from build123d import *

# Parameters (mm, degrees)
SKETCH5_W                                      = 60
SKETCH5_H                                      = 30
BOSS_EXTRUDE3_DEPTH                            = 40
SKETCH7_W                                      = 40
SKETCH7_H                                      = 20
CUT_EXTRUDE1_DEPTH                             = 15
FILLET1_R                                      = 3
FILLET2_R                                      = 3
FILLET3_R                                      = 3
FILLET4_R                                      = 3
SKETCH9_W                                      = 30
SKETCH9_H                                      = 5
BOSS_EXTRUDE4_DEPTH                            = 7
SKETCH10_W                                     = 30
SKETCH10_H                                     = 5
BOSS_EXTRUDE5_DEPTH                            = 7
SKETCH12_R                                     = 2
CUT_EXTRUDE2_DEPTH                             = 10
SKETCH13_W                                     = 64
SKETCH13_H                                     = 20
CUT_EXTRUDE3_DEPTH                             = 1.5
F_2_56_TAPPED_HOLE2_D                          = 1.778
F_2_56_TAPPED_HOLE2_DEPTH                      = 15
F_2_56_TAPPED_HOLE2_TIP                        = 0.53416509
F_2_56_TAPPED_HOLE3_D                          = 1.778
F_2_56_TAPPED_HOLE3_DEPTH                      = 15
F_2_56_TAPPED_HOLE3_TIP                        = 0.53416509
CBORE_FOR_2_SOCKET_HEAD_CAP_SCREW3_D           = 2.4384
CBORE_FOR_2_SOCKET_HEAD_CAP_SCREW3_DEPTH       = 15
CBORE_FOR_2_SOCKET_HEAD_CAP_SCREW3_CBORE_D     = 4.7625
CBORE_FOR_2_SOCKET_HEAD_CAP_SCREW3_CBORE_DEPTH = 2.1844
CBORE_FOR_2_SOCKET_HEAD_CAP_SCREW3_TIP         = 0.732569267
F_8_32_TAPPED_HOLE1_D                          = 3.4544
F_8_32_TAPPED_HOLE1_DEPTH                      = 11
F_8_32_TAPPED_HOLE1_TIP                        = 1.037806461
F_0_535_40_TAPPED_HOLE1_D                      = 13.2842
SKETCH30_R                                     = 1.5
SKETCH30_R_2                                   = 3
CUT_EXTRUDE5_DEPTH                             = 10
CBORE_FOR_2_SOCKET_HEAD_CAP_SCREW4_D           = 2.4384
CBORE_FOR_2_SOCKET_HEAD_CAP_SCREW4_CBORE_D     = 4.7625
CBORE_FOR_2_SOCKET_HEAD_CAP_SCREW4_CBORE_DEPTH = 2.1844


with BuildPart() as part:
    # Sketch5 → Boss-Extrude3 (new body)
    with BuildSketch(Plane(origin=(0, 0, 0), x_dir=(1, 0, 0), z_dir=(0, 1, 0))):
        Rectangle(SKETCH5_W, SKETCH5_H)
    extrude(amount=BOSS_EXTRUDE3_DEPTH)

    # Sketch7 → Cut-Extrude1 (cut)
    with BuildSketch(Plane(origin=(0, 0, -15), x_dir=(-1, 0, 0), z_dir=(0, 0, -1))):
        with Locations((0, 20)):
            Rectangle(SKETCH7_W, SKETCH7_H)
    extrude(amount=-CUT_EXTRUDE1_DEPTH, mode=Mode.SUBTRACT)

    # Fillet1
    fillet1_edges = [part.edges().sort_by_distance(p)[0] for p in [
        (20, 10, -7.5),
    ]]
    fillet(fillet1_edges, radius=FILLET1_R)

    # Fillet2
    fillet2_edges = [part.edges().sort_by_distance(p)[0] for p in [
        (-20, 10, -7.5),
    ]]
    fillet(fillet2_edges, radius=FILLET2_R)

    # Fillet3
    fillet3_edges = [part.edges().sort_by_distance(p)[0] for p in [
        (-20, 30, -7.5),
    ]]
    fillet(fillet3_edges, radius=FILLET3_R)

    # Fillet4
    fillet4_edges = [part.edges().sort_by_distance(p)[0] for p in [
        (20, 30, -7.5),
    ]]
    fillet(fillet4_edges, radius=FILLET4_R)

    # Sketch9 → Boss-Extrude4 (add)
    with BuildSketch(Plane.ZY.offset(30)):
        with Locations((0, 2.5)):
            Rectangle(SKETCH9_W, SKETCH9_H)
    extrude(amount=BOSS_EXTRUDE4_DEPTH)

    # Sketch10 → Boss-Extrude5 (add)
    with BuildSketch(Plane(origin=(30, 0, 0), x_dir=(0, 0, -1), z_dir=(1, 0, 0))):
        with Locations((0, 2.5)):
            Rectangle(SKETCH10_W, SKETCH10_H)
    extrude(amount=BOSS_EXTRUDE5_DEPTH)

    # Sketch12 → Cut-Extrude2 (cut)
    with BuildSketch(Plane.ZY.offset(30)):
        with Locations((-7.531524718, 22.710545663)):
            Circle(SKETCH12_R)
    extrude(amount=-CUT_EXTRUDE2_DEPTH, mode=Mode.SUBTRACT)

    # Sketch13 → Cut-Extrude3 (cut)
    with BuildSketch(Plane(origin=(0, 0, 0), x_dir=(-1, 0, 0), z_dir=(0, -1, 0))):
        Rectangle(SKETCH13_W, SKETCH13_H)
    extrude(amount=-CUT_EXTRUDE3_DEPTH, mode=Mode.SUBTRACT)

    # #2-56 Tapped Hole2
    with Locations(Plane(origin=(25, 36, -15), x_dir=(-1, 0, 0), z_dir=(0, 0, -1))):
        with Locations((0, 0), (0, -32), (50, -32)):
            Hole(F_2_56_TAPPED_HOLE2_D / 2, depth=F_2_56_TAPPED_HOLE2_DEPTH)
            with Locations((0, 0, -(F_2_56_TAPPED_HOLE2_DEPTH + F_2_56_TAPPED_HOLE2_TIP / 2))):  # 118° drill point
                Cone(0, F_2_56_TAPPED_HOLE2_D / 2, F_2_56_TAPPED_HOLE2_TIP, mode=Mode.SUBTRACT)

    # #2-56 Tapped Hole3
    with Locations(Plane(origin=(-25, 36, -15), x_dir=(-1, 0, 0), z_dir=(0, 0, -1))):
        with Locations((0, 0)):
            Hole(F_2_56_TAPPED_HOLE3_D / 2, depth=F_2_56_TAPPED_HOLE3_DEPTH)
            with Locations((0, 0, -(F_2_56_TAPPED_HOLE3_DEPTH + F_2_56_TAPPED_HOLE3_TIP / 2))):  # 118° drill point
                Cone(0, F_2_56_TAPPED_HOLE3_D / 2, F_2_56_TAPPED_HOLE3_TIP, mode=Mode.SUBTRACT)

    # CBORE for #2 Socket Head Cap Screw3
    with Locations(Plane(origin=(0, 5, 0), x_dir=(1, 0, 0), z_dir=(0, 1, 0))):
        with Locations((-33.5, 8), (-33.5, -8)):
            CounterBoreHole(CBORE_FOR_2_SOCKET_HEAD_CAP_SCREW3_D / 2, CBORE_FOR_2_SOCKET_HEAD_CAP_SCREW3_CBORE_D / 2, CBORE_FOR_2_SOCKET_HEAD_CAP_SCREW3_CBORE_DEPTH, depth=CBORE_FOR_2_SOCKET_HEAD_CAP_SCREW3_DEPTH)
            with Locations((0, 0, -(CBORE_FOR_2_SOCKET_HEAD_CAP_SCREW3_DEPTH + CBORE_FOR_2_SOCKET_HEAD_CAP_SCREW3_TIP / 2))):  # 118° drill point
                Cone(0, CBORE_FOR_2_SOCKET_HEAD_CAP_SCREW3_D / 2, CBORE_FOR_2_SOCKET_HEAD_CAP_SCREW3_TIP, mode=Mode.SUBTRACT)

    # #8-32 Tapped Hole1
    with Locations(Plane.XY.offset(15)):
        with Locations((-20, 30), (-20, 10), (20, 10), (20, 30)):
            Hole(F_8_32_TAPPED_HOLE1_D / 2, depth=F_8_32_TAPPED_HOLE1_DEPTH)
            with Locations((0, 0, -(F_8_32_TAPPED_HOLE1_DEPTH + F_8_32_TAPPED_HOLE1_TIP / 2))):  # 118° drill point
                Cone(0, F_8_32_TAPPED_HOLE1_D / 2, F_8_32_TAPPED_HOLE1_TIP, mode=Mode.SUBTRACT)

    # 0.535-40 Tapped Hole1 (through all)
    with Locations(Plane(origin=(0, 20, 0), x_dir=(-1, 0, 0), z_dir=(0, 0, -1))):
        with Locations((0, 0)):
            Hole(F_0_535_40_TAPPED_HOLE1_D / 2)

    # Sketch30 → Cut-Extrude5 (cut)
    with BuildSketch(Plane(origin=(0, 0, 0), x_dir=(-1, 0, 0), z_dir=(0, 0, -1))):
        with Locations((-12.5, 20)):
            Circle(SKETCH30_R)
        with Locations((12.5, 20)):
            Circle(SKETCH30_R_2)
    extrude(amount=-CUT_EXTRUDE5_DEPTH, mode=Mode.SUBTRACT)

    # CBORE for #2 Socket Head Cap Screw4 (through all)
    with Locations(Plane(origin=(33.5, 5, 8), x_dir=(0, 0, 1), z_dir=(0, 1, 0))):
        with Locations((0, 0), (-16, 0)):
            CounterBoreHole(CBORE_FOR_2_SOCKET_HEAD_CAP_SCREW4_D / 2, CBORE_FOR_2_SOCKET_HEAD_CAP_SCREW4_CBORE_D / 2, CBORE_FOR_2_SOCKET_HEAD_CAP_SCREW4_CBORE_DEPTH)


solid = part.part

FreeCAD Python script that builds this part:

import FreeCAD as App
import Part
import Sketcher
from FreeCAD import Vector


def edges_at(feature, points):
    """Names of the edges that pass closest to the given points."""
    edges = feature.Shape.Edges
    near = lambda p: min(range(len(edges)), key=lambda i: edges[i].distToShape(Part.Vertex(*p))[0])
    return sorted({f"Edge{near(p) + 1}" for p in points})

doc = App.newDocument("Part")
body = doc.addObject("PartDesign::Body", "Body")

sketch1 = doc.addObject("Sketcher::SketchObject", "Sketch")
body.addObject(sketch1)
sketch1.AttachmentSupport = (doc.XZ_Plane, [""])
sketch1.MapMode = "FlatFace"
sketch1.addGeometry(Part.LineSegment(Vector(-30, -15, 0), Vector(-30, 15, 0)), False)
sketch1.addGeometry(Part.LineSegment(Vector(-30, 15, 0), Vector(30, 15, 0)), False)
sketch1.addGeometry(Part.LineSegment(Vector(30, 15, 0), Vector(30, -15, 0)), False)
sketch1.addGeometry(Part.LineSegment(Vector(30, -15, 0), Vector(-30, -15, 0)), False)
sketch1.addConstraint(Sketcher.Constraint("Coincident", 0, 2, 1, 1))
sketch1.addConstraint(Sketcher.Constraint("Coincident", 1, 2, 2, 1))
sketch1.addConstraint(Sketcher.Constraint("Coincident", 2, 2, 3, 1))
sketch1.addConstraint(Sketcher.Constraint("Coincident", 3, 2, 0, 1))
sketch1.addConstraint(Sketcher.Constraint("Vertical", 0))
sketch1.addConstraint(Sketcher.Constraint("Horizontal", 1))
sketch1.addConstraint(Sketcher.Constraint("Vertical", 2))
sketch1.addConstraint(Sketcher.Constraint("Horizontal", 3))
sketch1.addConstraint(Sketcher.Constraint("Symmetric", 0, 2, 2, 2, -1, 1))
sketch1.addConstraint(Sketcher.Constraint("DistanceX", 1, 1, 1, 2, 60.0))
sketch1.addConstraint(Sketcher.Constraint("DistanceY", 0, 1, 0, 2, 30.0))
pad1 = doc.addObject("PartDesign::Pad", "Pad")
body.addObject(pad1)
pad1.Profile = sketch1
pad1.Length = 40
pad1.Reversed = True

sketch2 = doc.addObject("Sketcher::SketchObject", "Sketch001")
body.addObject(sketch2)
sketch2.AttachmentSupport = (doc.XY_Plane, [""])
sketch2.MapMode = "FlatFace"
sketch2.AttachmentOffset = App.Placement(Vector(0, 0, -15), App.Rotation())
sketch2.addGeometry(Part.LineSegment(Vector(20, 30, 0), Vector(20, 10, 0)), False)
sketch2.addGeometry(Part.LineSegment(Vector(20, 10, 0), Vector(-20, 10, 0)), False)
sketch2.addGeometry(Part.LineSegment(Vector(-20, 10, 0), Vector(-20, 30, 0)), False)
sketch2.addGeometry(Part.LineSegment(Vector(-20, 30, 0), Vector(20, 30, 0)), False)
sketch2.addConstraint(Sketcher.Constraint("Coincident", 0, 2, 1, 1))
sketch2.addConstraint(Sketcher.Constraint("Coincident", 1, 2, 2, 1))
sketch2.addConstraint(Sketcher.Constraint("Coincident", 2, 2, 3, 1))
sketch2.addConstraint(Sketcher.Constraint("Coincident", 3, 2, 0, 1))
sketch2.addConstraint(Sketcher.Constraint("Vertical", 0))
sketch2.addConstraint(Sketcher.Constraint("Horizontal", 1))
sketch2.addConstraint(Sketcher.Constraint("Vertical", 2))
sketch2.addConstraint(Sketcher.Constraint("Horizontal", 3))
sketch2.addConstraint(Sketcher.Constraint("DistanceX", 1, 2, 1, 1, 40.0))
sketch2.addConstraint(Sketcher.Constraint("DistanceY", 0, 2, 0, 1, 20.0))
sketch2.addConstraint(Sketcher.Constraint("DistanceX", -1, 1, 0, 2, 20.0))
sketch2.addConstraint(Sketcher.Constraint("DistanceY", -1, 1, 0, 2, 10.0))
pocket1 = doc.addObject("PartDesign::Pocket", "Pocket")
body.addObject(pocket1)
pocket1.Profile = sketch2
pocket1.Length = 15
pocket1.Reversed = True
doc.recompute()

fillet = doc.addObject("PartDesign::Fillet", "Fillet")
body.addObject(fillet)
fillet.Base = (pocket1, edges_at(pocket1, [(20, 10, -7.5)]))
fillet.Radius = 3
doc.recompute()

fillet2 = doc.addObject("PartDesign::Fillet", "Fillet001")
body.addObject(fillet2)
fillet2.Base = (fillet, edges_at(fillet, [(-20, 10, -7.5)]))
fillet2.Radius = 3
doc.recompute()

fillet3 = doc.addObject("PartDesign::Fillet", "Fillet002")
body.addObject(fillet3)
fillet3.Base = (fillet2, edges_at(fillet2, [(-20, 30, -7.5)]))
fillet3.Radius = 3
doc.recompute()

fillet4 = doc.addObject("PartDesign::Fillet", "Fillet003")
body.addObject(fillet4)
fillet4.Base = (fillet3, edges_at(fillet3, [(20, 30, -7.5)]))
fillet4.Radius = 3

sketch3 = doc.addObject("Sketcher::SketchObject", "Sketch002")
body.addObject(sketch3)
sketch3.AttachmentSupport = (doc.YZ_Plane, [""])
sketch3.MapMode = "FlatFace"
sketch3.AttachmentOffset = App.Placement(Vector(0, 0, -30), App.Rotation())
sketch3.addGeometry(Part.LineSegment(Vector(5, -15, 0), Vector(0, -15, 0)), False)
sketch3.addGeometry(Part.LineSegment(Vector(0, -15, 0), Vector(0, 15, 0)), False)
sketch3.addGeometry(Part.LineSegment(Vector(0, 15, 0), Vector(5, 15, 0)), False)
sketch3.addGeometry(Part.LineSegment(Vector(5, 15, 0), Vector(5, -15, 0)), False)
sketch3.addConstraint(Sketcher.Constraint("Coincident", 0, 2, 1, 1))
sketch3.addConstraint(Sketcher.Constraint("Coincident", 1, 2, 2, 1))
sketch3.addConstraint(Sketcher.Constraint("Coincident", 2, 2, 3, 1))
sketch3.addConstraint(Sketcher.Constraint("Coincident", 3, 2, 0, 1))
sketch3.addConstraint(Sketcher.Constraint("Horizontal", 0))
sketch3.addConstraint(Sketcher.Constraint("Vertical", 1))
sketch3.addConstraint(Sketcher.Constraint("Horizontal", 2))
sketch3.addConstraint(Sketcher.Constraint("Vertical", 3))
sketch3.addConstraint(Sketcher.Constraint("Symmetric", 0, 2, 1, 2, -1, 1))
sketch3.addConstraint(Sketcher.Constraint("DistanceX", 0, 2, 0, 1, 5.0))
sketch3.addConstraint(Sketcher.Constraint("DistanceY", 1, 1, 1, 2, 30.0))
pad2 = doc.addObject("PartDesign::Pad", "Pad001")
body.addObject(pad2)
pad2.Profile = sketch3
pad2.Length = 7
pad2.Reversed = True

sketch4 = doc.addObject("Sketcher::SketchObject", "Sketch003")
body.addObject(sketch4)
sketch4.AttachmentSupport = (doc.YZ_Plane, [""])
sketch4.MapMode = "FlatFace"
sketch4.AttachmentOffset = App.Placement(Vector(0, 0, 30), App.Rotation())
sketch4.addGeometry(Part.LineSegment(Vector(5, 15, 0), Vector(0, 15, 0)), False)
sketch4.addGeometry(Part.LineSegment(Vector(0, 15, 0), Vector(0, -15, 0)), False)
sketch4.addGeometry(Part.LineSegment(Vector(0, -15, 0), Vector(5, -15, 0)), False)
sketch4.addGeometry(Part.LineSegment(Vector(5, -15, 0), Vector(5, 15, 0)), False)
sketch4.addConstraint(Sketcher.Constraint("Coincident", 0, 2, 1, 1))
sketch4.addConstraint(Sketcher.Constraint("Coincident", 1, 2, 2, 1))
sketch4.addConstraint(Sketcher.Constraint("Coincident", 2, 2, 3, 1))
sketch4.addConstraint(Sketcher.Constraint("Coincident", 3, 2, 0, 1))
sketch4.addConstraint(Sketcher.Constraint("Horizontal", 0))
sketch4.addConstraint(Sketcher.Constraint("Vertical", 1))
sketch4.addConstraint(Sketcher.Constraint("Horizontal", 2))
sketch4.addConstraint(Sketcher.Constraint("Vertical", 3))
sketch4.addConstraint(Sketcher.Constraint("Symmetric", 0, 2, 1, 2, -1, 1))
sketch4.addConstraint(Sketcher.Constraint("DistanceX", 0, 2, 0, 1, 5.0))
sketch4.addConstraint(Sketcher.Constraint("DistanceY", 1, 2, 1, 1, 30.0))
pad3 = doc.addObject("PartDesign::Pad", "Pad002")
body.addObject(pad3)
pad3.Profile = sketch4
pad3.Length = 7

sketch5 = doc.addObject("Sketcher::SketchObject", "Sketch004")
body.addObject(sketch5)
sketch5.AttachmentSupport = (doc.YZ_Plane, [""])
sketch5.MapMode = "FlatFace"
sketch5.AttachmentOffset = App.Placement(Vector(0, 0, -30), App.Rotation())
sketch5.addGeometry(Part.Circle(Vector(22.710546, -7.531525, 0), Vector(0, 0, 1), 2), False)
sketch5.addConstraint(Sketcher.Constraint("Diameter", 0, 4.0))
sketch5.addConstraint(Sketcher.Constraint("DistanceX", -1, 1, 0, 3, 22.710546))
sketch5.addConstraint(Sketcher.Constraint("DistanceY", 0, 3, -1, 1, 7.531525))
pocket2 = doc.addObject("PartDesign::Pocket", "Pocket001")
body.addObject(pocket2)
pocket2.Profile = sketch5
pocket2.Length = 10
pocket2.Reversed = True

sketch6 = doc.addObject("Sketcher::SketchObject", "Sketch005")
body.addObject(sketch6)
sketch6.AttachmentSupport = (doc.XZ_Plane, [""])
sketch6.MapMode = "FlatFace"
sketch6.addGeometry(Part.LineSegment(Vector(32, -10, 0), Vector(32, 10, 0)), False)
sketch6.addGeometry(Part.LineSegment(Vector(32, 10, 0), Vector(-32, 10, 0)), False)
sketch6.addGeometry(Part.LineSegment(Vector(-32, 10, 0), Vector(-32, -10, 0)), False)
sketch6.addGeometry(Part.LineSegment(Vector(-32, -10, 0), Vector(32, -10, 0)), False)
sketch6.addConstraint(Sketcher.Constraint("Coincident", 0, 2, 1, 1))
sketch6.addConstraint(Sketcher.Constraint("Coincident", 1, 2, 2, 1))
sketch6.addConstraint(Sketcher.Constraint("Coincident", 2, 2, 3, 1))
sketch6.addConstraint(Sketcher.Constraint("Coincident", 3, 2, 0, 1))
sketch6.addConstraint(Sketcher.Constraint("Vertical", 0))
sketch6.addConstraint(Sketcher.Constraint("Horizontal", 1))
sketch6.addConstraint(Sketcher.Constraint("Vertical", 2))
sketch6.addConstraint(Sketcher.Constraint("Horizontal", 3))
sketch6.addConstraint(Sketcher.Constraint("Symmetric", 0, 2, 2, 2, -1, 1))
sketch6.addConstraint(Sketcher.Constraint("DistanceX", 1, 2, 1, 1, 64.0))
sketch6.addConstraint(Sketcher.Constraint("DistanceY", 0, 1, 0, 2, 20.0))
pocket3 = doc.addObject("PartDesign::Pocket", "Pocket002")
body.addObject(pocket3)
pocket3.Profile = sketch6
pocket3.Length = 1.5

sketch7 = doc.addObject("Sketcher::SketchObject", "Sketch006")
body.addObject(sketch7)
sketch7.AttachmentSupport = (doc.XY_Plane, [""])
sketch7.MapMode = "FlatFace"
sketch7.AttachmentOffset = App.Placement(Vector(0, 0, -15), App.Rotation())
sketch7.addGeometry(Part.Circle(Vector(25, 36, 0), Vector(0, 0, 1), 0.889), False)
sketch7.addGeometry(Part.Circle(Vector(25, 4, 0), Vector(0, 0, 1), 0.889), False)
sketch7.addGeometry(Part.Circle(Vector(-25, 4, 0), Vector(0, 0, 1), 0.889), False)
sketch7.addConstraint(Sketcher.Constraint("Equal", 0, 1))
sketch7.addConstraint(Sketcher.Constraint("Equal", 1, 2))
sketch7.addConstraint(Sketcher.Constraint("Symmetric", 1, 3, 2, 3, -2))
sketch7.addConstraint(Sketcher.Constraint("Vertical", 0, 3, 1, 3))
sketch7.addConstraint(Sketcher.Constraint("Diameter", 0, 1.778))
sketch7.addConstraint(Sketcher.Constraint("DistanceX", -1, 1, 0, 3, 25.0))
sketch7.addConstraint(Sketcher.Constraint("DistanceY", -1, 1, 0, 3, 36.0))
sketch7.addConstraint(Sketcher.Constraint("DistanceY", -1, 1, 1, 3, 4.0))
doc.recompute()
hole = doc.addObject("PartDesign::Hole", "Hole")
body.addObject(hole)
hole.Profile = sketch7
hole.ThreadType = "None"
hole.Diameter = 1.778
hole.DepthType = "Dimension"
hole.Depth = 15
hole.DrillPoint = "Angled"
hole.DrillPointAngle = 118
hole.Reversed = True

sketch8 = doc.addObject("Sketcher::SketchObject", "Sketch007")
body.addObject(sketch8)
sketch8.AttachmentSupport = (doc.XY_Plane, [""])
sketch8.MapMode = "FlatFace"
sketch8.AttachmentOffset = App.Placement(Vector(0, 0, -15), App.Rotation())
sketch8.addGeometry(Part.Circle(Vector(-25, 36, 0), Vector(0, 0, 1), 0.889), False)
sketch8.addConstraint(Sketcher.Constraint("Diameter", 0, 1.778))
sketch8.addConstraint(Sketcher.Constraint("DistanceX", 0, 3, -1, 1, 25.0))
sketch8.addConstraint(Sketcher.Constraint("DistanceY", -1, 1, 0, 3, 36.0))
doc.recompute()
hole2 = doc.addObject("PartDesign::Hole", "Hole001")
body.addObject(hole2)
hole2.Profile = sketch8
hole2.ThreadType = "None"
hole2.Diameter = 1.778
hole2.DepthType = "Dimension"
hole2.Depth = 15
hole2.DrillPoint = "Angled"
hole2.DrillPointAngle = 118
hole2.Reversed = True

sketch9 = doc.addObject("Sketcher::SketchObject", "Sketch008")
body.addObject(sketch9)
sketch9.AttachmentSupport = (doc.XZ_Plane, [""])
sketch9.MapMode = "FlatFace"
sketch9.AttachmentOffset = App.Placement(Vector(0, 0, -5), App.Rotation())
sketch9.addGeometry(Part.Circle(Vector(-33.5, -8, 0), Vector(0, 0, 1), 1.2192), False)
sketch9.addGeometry(Part.Circle(Vector(-33.5, 8, 0), Vector(0, 0, 1), 1.2192), False)
sketch9.addConstraint(Sketcher.Constraint("Equal", 0, 1))
sketch9.addConstraint(Sketcher.Constraint("Symmetric", 0, 3, 1, 3, -1))
sketch9.addConstraint(Sketcher.Constraint("DistanceY", 0, 3, -1, 1, 8.0))
sketch9.addConstraint(Sketcher.Constraint("Diameter", 0, 2.4384))
sketch9.addConstraint(Sketcher.Constraint("DistanceX", 0, 3, -1, 1, 33.5))
doc.recompute()
hole3 = doc.addObject("PartDesign::Hole", "Hole002")
body.addObject(hole3)
hole3.Profile = sketch9
hole3.ThreadType = "None"
hole3.Diameter = 2.4384
hole3.DepthType = "Dimension"
hole3.Depth = 15
hole3.DrillPoint = "Angled"
hole3.DrillPointAngle = 118
hole3.HoleCutType = "Counterbore"
hole3.HoleCutDiameter = 4.7625
hole3.HoleCutDepth = 2.1844
hole3.Reversed = True

sketch10 = doc.addObject("Sketcher::SketchObject", "Sketch009")
body.addObject(sketch10)
sketch10.AttachmentSupport = (doc.XY_Plane, [""])
sketch10.MapMode = "FlatFace"
sketch10.AttachmentOffset = App.Placement(Vector(0, 0, 15), App.Rotation())
sketch10.addGeometry(Part.Circle(Vector(-20, 30, 0), Vector(0, 0, 1), 1.7272), False)
sketch10.addGeometry(Part.Circle(Vector(-20, 10, 0), Vector(0, 0, 1), 1.7272), False)
sketch10.addGeometry(Part.Circle(Vector(20, 10, 0), Vector(0, 0, 1), 1.7272), False)
sketch10.addGeometry(Part.Circle(Vector(20, 30, 0), Vector(0, 0, 1), 1.7272), False)
sketch10.addConstraint(Sketcher.Constraint("Equal", 0, 1))
sketch10.addConstraint(Sketcher.Constraint("Equal", 1, 2))
sketch10.addConstraint(Sketcher.Constraint("Equal", 2, 3))
sketch10.addConstraint(Sketcher.Constraint("Symmetric", 1, 3, 2, 3, -2))
sketch10.addConstraint(Sketcher.Constraint("Symmetric", 0, 3, 3, 3, -2))
sketch10.addConstraint(Sketcher.Constraint("Vertical", 0, 3, 1, 3))
sketch10.addConstraint(Sketcher.Constraint("DistanceX", 0, 3, -1, 1, 20.0))
sketch10.addConstraint(Sketcher.Constraint("DistanceY", -1, 1, 0, 3, 30.0))
sketch10.addConstraint(Sketcher.Constraint("DistanceY", -1, 1, 1, 3, 10.0))
sketch10.addConstraint(Sketcher.Constraint("Diameter", 0, 3.4544))
doc.recompute()
hole4 = doc.addObject("PartDesign::Hole", "Hole003")
body.addObject(hole4)
hole4.Profile = sketch10
hole4.ThreadType = "None"
hole4.Diameter = 3.4544
hole4.DepthType = "Dimension"
hole4.Depth = 11
hole4.DrillPoint = "Angled"
hole4.DrillPointAngle = 118

sketch11 = doc.addObject("Sketcher::SketchObject", "Sketch010")
body.addObject(sketch11)
sketch11.AttachmentSupport = (doc.XY_Plane, [""])
sketch11.MapMode = "FlatFace"
sketch11.addGeometry(Part.Circle(Vector(0, 20, 0), Vector(0, 0, 1), 6.6421), False)
sketch11.addConstraint(Sketcher.Constraint("PointOnObject", 0, 3, -2))
sketch11.addConstraint(Sketcher.Constraint("DistanceY", -1, 1, 0, 3, 20.0))
sketch11.addConstraint(Sketcher.Constraint("Diameter", 0, 13.2842))
doc.recompute()
hole5 = doc.addObject("PartDesign::Hole", "Hole004")
body.addObject(hole5)
hole5.Profile = sketch11
hole5.ThreadType = "None"
hole5.Diameter = 13.2842
hole5.DepthType = "ThroughAll"
hole5.Reversed = True

sketch12 = doc.addObject("Sketcher::SketchObject", "Sketch011")
body.addObject(sketch12)
sketch12.AttachmentSupport = (doc.XY_Plane, [""])
sketch12.MapMode = "FlatFace"
sketch12.addGeometry(Part.Circle(Vector(12.5, 20, 0), Vector(0, 0, 1), 1.5), False)
sketch12.addGeometry(Part.Circle(Vector(-12.5, 20, 0), Vector(0, 0, 1), 3), False)
sketch12.addConstraint(Sketcher.Constraint("Symmetric", 0, 3, 1, 3, -2))
sketch12.addConstraint(Sketcher.Constraint("Diameter", 0, 3.0))
sketch12.addConstraint(Sketcher.Constraint("Diameter", 1, 6.0))
sketch12.addConstraint(Sketcher.Constraint("DistanceY", -1, 1, 0, 3, 20.0))
sketch12.addConstraint(Sketcher.Constraint("DistanceX", 1, 3, 0, 3, 25.0))
pocket4 = doc.addObject("PartDesign::Pocket", "Pocket003")
body.addObject(pocket4)
pocket4.Profile = sketch12
pocket4.Length = 10
pocket4.Reversed = True

sketch13 = doc.addObject("Sketcher::SketchObject", "Sketch012")
body.addObject(sketch13)
sketch13.AttachmentSupport = (doc.XZ_Plane, [""])
sketch13.MapMode = "FlatFace"
sketch13.AttachmentOffset = App.Placement(Vector(0, 0, -5), App.Rotation())
sketch13.addGeometry(Part.Circle(Vector(33.5, 8, 0), Vector(0, 0, 1), 1.2192), False)
sketch13.addGeometry(Part.Circle(Vector(33.5, -8, 0), Vector(0, 0, 1), 1.2192), False)
sketch13.addConstraint(Sketcher.Constraint("Equal", 0, 1))
sketch13.addConstraint(Sketcher.Constraint("Symmetric", 0, 3, 1, 3, -1))
sketch13.addConstraint(Sketcher.Constraint("DistanceY", -1, 1, 0, 3, 8.0))
sketch13.addConstraint(Sketcher.Constraint("Diameter", 0, 2.4384))
sketch13.addConstraint(Sketcher.Constraint("DistanceX", -1, 1, 0, 3, 33.5))
doc.recompute()
hole6 = doc.addObject("PartDesign::Hole", "Hole005")
body.addObject(hole6)
hole6.Profile = sketch13
hole6.ThreadType = "None"
hole6.Diameter = 2.4384
hole6.DepthType = "ThroughAll"
hole6.HoleCutType = "Counterbore"
hole6.HoleCutDiameter = 4.7625
hole6.HoleCutDepth = 2.1844
hole6.Reversed = True

doc.recompute()
